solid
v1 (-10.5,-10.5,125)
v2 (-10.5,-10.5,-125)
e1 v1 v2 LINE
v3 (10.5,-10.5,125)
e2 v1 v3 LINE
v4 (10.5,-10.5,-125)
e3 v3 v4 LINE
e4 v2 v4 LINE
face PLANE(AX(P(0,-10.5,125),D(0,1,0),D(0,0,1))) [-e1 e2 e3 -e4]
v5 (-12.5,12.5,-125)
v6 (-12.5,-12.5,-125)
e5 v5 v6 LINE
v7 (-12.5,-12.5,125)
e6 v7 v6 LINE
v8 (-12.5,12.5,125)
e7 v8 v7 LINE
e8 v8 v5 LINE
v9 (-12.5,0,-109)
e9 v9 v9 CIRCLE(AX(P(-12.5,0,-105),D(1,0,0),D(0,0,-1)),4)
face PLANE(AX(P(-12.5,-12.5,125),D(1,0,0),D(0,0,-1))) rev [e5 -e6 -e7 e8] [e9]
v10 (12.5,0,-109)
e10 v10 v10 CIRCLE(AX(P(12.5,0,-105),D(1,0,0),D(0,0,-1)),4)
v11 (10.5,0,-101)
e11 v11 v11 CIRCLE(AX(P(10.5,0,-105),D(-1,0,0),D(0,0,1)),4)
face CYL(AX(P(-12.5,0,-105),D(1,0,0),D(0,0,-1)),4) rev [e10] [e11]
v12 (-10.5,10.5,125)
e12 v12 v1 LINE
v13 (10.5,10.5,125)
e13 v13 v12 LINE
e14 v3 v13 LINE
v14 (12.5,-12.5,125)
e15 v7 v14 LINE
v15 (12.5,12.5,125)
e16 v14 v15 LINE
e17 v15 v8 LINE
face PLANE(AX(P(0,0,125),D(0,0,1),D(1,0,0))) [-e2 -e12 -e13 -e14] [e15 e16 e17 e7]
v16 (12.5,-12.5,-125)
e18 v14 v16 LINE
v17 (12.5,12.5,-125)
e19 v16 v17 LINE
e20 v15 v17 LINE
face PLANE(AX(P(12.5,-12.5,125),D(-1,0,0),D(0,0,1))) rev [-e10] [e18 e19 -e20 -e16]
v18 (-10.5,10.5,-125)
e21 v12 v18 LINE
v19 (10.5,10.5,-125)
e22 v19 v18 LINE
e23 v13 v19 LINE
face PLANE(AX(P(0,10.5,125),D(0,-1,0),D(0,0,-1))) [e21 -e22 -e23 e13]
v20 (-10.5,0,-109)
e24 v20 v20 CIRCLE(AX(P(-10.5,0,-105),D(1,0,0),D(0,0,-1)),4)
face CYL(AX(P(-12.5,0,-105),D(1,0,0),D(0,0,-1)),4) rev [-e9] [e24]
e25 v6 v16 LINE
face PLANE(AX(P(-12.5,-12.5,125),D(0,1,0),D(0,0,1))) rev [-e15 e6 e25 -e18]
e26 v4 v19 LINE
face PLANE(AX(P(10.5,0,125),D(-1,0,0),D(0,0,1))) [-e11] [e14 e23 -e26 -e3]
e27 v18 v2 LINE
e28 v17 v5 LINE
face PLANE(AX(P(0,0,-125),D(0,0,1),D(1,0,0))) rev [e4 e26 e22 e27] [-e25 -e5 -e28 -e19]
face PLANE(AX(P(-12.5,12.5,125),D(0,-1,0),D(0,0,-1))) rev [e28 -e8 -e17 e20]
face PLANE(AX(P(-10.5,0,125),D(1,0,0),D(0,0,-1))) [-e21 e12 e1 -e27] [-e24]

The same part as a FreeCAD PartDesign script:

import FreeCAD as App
import Part
import Sketcher
from FreeCAD import Vector


def add_polygon(sketch, points):
    """Adds a closed chain of lines whose ends are joined by coincident constraints."""
    first, n = sketch.GeometryCount, len(points)
    for a, b in zip(points, points[1:] + points[:1]):
        sketch.addGeometry(Part.LineSegment(App.Vector(*a, 0), App.Vector(*b, 0)), False)
    for i in range(n):
        sketch.addConstraint(Sketcher.Constraint("Coincident", first + i, 2, first + (i + 1) % n, 1))

doc = App.newDocument("Part")
body = doc.addObject("PartDesign::Body", "Body")

sketch1 = body.newObject("Sketcher::SketchObject", "Sketch")
sketch1.AttachmentSupport = (doc.getObject("XY_Plane"), [""])
sketch1.MapMode = "FlatFace"
add_polygon(sketch1, [(-12.5, 12.5), (-12.5, -12.5), (12.5, -12.5), (12.5, 12.5)])
add_polygon(sketch1, [(10.5, -10.5), (-10.5, -10.5), (-10.5, 10.5), (10.5, 10.5)])
sketch1.addConstraint(Sketcher.Constraint("Vertical", 0))
sketch1.addConstraint(Sketcher.Constraint("Horizontal", 1))
sketch1.addConstraint(Sketcher.Constraint("Vertical", 2))
sketch1.addConstraint(Sketcher.Constraint("Horizontal", 3))
sketch1.addConstraint(Sketcher.Constraint("Horizontal", 4))
sketch1.addConstraint(Sketcher.Constraint("Vertical", 5))
sketch1.addConstraint(Sketcher.Constraint("Horizontal", 6))
sketch1.addConstraint(Sketcher.Constraint("Vertical", 7))
sketch1.addConstraint(Sketcher.Constraint("Symmetric", 0, 2, 2, 2, -1, 1))
sketch1.addConstraint(Sketcher.Constraint("Symmetric", 4, 2, 6, 2, -1, 1))
sketch1.addConstraint(Sketcher.Constraint("Equal", 3, 0))
sketch1.addConstraint(Sketcher.Constraint("Equal", 6, 5))
sketch1.addConstraint(Sketcher.Constraint("DistanceX", 1, 1, 1, 2, 25.0))
sketch1.addConstraint(Sketcher.Constraint("DistanceX", 4, 2, 4, 1, 21.0))
pad1 = body.newObject("PartDesign::Pad", "Pad")
pad1.Profile = sketch1
pad1.Length = 250
pad1.Midplane = True

sketch2 = body.newObject("Sketcher::SketchObject", "Sketch001")
sketch2.AttachmentSupport = (doc.getObject("YZ_Plane"), [""])
sketch2.MapMode = "FlatFace"
sketch2.AttachmentOffset = App.Placement(Vector(0, 0, 12.5), App.Rotation())
sketch2.addGeometry(Part.Circle(Vector(0, -105, 0), Vector(0, 0, 1), 4), False)
sketch2.addConstraint(Sketcher.Constraint("PointOnObject", 0, 3, -2))
sketch2.addConstraint(Sketcher.Constraint("Diameter", 0, 8.0))
sketch2.addConstraint(Sketcher.Constraint("DistanceY", 0, 3, -1, 1, 105.0))
pocket1 = body.newObject("PartDesign::Pocket", "Pocket")
pocket1.Profile = sketch2
pocket1.Type = "ThroughAll"

doc.recompute()
